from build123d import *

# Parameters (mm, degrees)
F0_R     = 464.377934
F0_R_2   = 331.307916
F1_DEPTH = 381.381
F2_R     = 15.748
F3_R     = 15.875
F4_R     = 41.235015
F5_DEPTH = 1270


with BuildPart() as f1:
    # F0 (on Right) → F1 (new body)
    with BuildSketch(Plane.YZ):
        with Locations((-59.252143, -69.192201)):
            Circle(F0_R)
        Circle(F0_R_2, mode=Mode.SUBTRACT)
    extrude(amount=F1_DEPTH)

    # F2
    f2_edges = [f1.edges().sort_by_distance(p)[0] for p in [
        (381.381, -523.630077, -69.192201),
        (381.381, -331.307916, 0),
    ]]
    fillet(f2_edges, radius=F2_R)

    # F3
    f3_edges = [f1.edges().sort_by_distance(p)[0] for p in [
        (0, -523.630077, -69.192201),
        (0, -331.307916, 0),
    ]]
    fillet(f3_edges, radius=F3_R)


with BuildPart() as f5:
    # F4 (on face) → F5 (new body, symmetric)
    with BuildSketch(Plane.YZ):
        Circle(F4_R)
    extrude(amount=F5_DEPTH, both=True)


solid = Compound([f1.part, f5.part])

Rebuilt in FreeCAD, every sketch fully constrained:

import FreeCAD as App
import Part
import Sketcher
from FreeCAD import Vector
Q = App.Units.Quantity


def edges_at(feature, points):
    """Names of the edges that pass closest to the given points."""
    edges = feature.Shape.Edges
    near = lambda p: min(range(len(edges)), key=lambda i: edges[i].distToShape(Part.Vertex(*p))[0])
    return sorted({f"Edge{near(p) + 1}" for p in points})

doc = App.newDocument("Part")
body = doc.addObject("PartDesign::Body", "Body")

sketch1 = body.newObject("Sketcher::SketchObject", "Sketch")
sketch1.AttachmentSupport = (doc.getObject("YZ_Plane"), [""])
sketch1.MapMode = "FlatFace"
sketch1.addGeometry([
    Part.Circle(Vector(-59, -69, 0), Vector(0, 0, 1), 464),
    Part.Circle(Vector(0, 0, 0), Vector(0, 0, 1), 331),
], False)
sketch1.addConstraint([
    Sketcher.Constraint("Coincident", 1, 3, -1, 1),
    Sketcher.Constraint("Diameter", 0, Q("928.755868 mm")),
    Sketcher.Constraint("Diameter", 1, Q("662.615832 mm")),
    Sketcher.Constraint("DistanceY", 0, 3, -1, 1, Q("69.192201 mm")),
    Sketcher.Constraint("DistanceX", 0, 3, -1, 1, Q("59.252143 mm")),
])
pad1 = body.newObject("PartDesign::Pad", "Pad")
pad1.Profile = sketch1
pad1.Length = Q("15.015 in")
doc.recompute()

fillet = body.newObject("PartDesign::Fillet", "Fillet")
fillet.Base = (pad1, edges_at(pad1, [(381.381, -523.63, -69.192), (381.381, -331.308, 0)]))
fillet.Radius = Q("0.62 in")
doc.recompute()

fillet2 = body.newObject("PartDesign::Fillet", "Fillet001")
fillet2.Base = (fillet, edges_at(fillet, [(0, -523.63, -69.192), (0, -331.308, 0)]))
fillet2.Radius = Q("0.625 in")
body2 = doc.addObject("PartDesign::Body", "Body001")

sketch2 = body2.newObject("Sketcher::SketchObject", "Sketch001")
sketch2.AttachmentSupport = (doc.getObject("YZ_Plane001"), [""])
sketch2.MapMode = "FlatFace"
sketch2.addGeometry(Part.Circle(Vector(0, 0, 0), Vector(0, 0, 1), 41), False)
sketch2.addConstraint([
    Sketcher.Constraint("Coincident", 0, 3, -1, 1),
    Sketcher.Constraint("Diameter", 0, Q("82.47003 mm")),
])
pad2 = body2.newObject("PartDesign::Pad", "Pad001")
pad2.Profile = sketch2
pad2.Length = Q("100 in")
pad2.Midplane = True

doc.recompute()
